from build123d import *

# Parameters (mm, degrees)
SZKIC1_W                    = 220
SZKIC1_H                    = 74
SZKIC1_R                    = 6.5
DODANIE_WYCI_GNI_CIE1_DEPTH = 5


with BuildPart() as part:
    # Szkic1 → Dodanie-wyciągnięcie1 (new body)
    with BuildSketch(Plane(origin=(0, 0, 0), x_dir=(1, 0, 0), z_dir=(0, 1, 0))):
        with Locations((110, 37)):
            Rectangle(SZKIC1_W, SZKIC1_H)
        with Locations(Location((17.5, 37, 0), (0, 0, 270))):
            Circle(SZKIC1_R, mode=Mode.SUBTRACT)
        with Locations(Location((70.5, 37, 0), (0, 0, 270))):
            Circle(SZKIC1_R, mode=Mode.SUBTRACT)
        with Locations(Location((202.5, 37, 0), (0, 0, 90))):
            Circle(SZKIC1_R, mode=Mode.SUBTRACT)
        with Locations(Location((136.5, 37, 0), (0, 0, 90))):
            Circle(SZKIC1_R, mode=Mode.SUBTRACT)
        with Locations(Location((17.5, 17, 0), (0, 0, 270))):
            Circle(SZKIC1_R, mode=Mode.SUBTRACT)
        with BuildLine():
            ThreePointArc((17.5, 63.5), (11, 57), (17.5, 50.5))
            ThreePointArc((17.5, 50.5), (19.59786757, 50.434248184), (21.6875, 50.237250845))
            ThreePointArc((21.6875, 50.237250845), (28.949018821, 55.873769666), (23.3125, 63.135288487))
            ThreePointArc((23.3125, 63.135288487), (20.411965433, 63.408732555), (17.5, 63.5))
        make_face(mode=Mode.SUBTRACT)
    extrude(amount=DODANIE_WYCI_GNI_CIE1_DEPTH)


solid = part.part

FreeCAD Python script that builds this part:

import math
import FreeCAD as App
import Part
import Sketcher
from FreeCAD import Vector
Q = App.Units.Quantity


def add_polygon(sketch, points):
    """Adds a closed chain of lines whose ends are joined by coincident constraints."""
    first, n = sketch.GeometryCount, len(points)
    for a, b in zip(points, points[1:] + points[:1]):
        sketch.addGeometry(Part.LineSegment(App.Vector(*a, 0), App.Vector(*b, 0)), False)
    for i in range(n):
        sketch.addConstraint(Sketcher.Constraint("Coincident", first + i, 2, first + (i + 1) % n, 1))

doc = App.newDocument("Part")
body = doc.addObject("PartDesign::Body", "Body")

# Sketch on XZ plane
sketch1 = body.newObject("Sketcher::SketchObject", "Sketch")
sketch1.AttachmentSupport = (doc.getObject("XZ_Plane"), [""])
sketch1.MapMode = "FlatFace"
add_polygon(sketch1, [(0, -74), (0, 0), (220, 0), (220, -74)])  # lines 0-3
sketch1.addGeometry(Part.Circle(Vector(17.5, -17, 0), Vector(0, 0, 1), 6.5), False)  # 4
sketch1.addGeometry(Part.Circle(Vector(17.5, -37, 0), Vector(0, 0, 1), 6.5), False)  # 5
sketch1.addGeometry(Part.Circle(Vector(70.5, -37, 0), Vector(0, 0, 1), 6.5), False)  # 6
sketch1.addGeometry(Part.ArcOfCircle(Part.Circle(Vector(17.5, -57, 0), Vector(0, 0, 1), 6.5), math.radians(90), math.radians(270)), False)  # 7
sketch1.addGeometry(Part.ArcOfCircle(Part.Circle(Vector(17.5, -17, 0), Vector(0, 0, 1), 46.5), math.radians(-90), math.radians(-82.82)), False)  # 8
sketch1.addGeometry(Part.ArcOfCircle(Part.Circle(Vector(22.5, -56.7, 0), Vector(0, 0, 1), 6.5), math.radians(-83), math.radians(97)), False)  # 9
sketch1.addGeometry(Part.ArcOfCircle(Part.Circle(Vector(17.5, -17, 0), Vector(0, 0, 1), 33.5), math.radians(-90), math.radians(-82.82)), False)  # 10
sketch1.addGeometry(Part.Circle(Vector(136.5, -37, 0), Vector(0, 0, 1), 6.5), False)  # 11
sketch1.addGeometry(Part.Circle(Vector(202.5, -37, 0), Vector(0, 0, 1), 6.5), False)  # 12
sketch1.addConstraint(Sketcher.Constraint("Tangent", 7, 2, 8, 1))
sketch1.addConstraint(Sketcher.Constraint("Tangent", 8, 2, 9, 1))
sketch1.addConstraint(Sketcher.Constraint("Tangent", 9, 2, 10, 2))
sketch1.addConstraint(Sketcher.Constraint("Tangent", 10, 1, 7, 1))
sketch1.addConstraint(Sketcher.Constraint("Vertical", 0))
sketch1.addConstraint(Sketcher.Constraint("Horizontal", 1))
sketch1.addConstraint(Sketcher.Constraint("Vertical", 2))
sketch1.addConstraint(Sketcher.Constraint("Horizontal", 3))
sketch1.addConstraint(Sketcher.Constraint("Coincident", 0, 2, -1, 1))
sketch1.addConstraint(Sketcher.Constraint("Coincident", 8, 3, 4, 3))
sketch1.addConstraint(Sketcher.Constraint("Coincident", 10, 3, 4, 3))
sketch1.addConstraint(Sketcher.Constraint("Equal", 4, 5))
sketch1.addConstraint(Sketcher.Constraint("Equal", 5, 6))
sketch1.addConstraint(Sketcher.Constraint("Equal", 6, 7))
sketch1.addConstraint(Sketcher.Constraint("Equal", 9, 11))
sketch1.addConstraint(Sketcher.Constraint("Equal", 11, 12))
sketch1.addConstraint(Sketcher.Constraint("Horizontal", 5, 3, 6, 3))
sketch1.addConstraint(Sketcher.Constraint("Horizontal", 6, 3, 11, 3))
sketch1.addConstraint(Sketcher.Constraint("Horizontal", 11, 3, 12, 3))
sketch1.addConstraint(Sketcher.Constraint("Vertical", 4, 3, 5, 3))
sketch1.addConstraint(Sketcher.Constraint("Vertical", 5, 3, 7, 3))
sketch1.addConstraint(Sketcher.Constraint("Diameter", 4, Q("13 mm")))
sketch1.addConstraint(Sketcher.Constraint("Radius", 8, Q("46.5 mm")))
sketch1.addConstraint(Sketcher.Constraint("DistanceX", 1, 1, 1, 2, Q("220 mm")))
sketch1.addConstraint(Sketcher.Constraint("DistanceY", 0, 1, 0, 2, Q("74 mm")))
sketch1.addConstraint(Sketcher.Constraint("DistanceY", 4, 3, -1, 1, Q("17 mm")))
sketch1.addConstraint(Sketcher.Constraint("DistanceY", 5, 3, -1, 1, Q("37 mm")))
sketch1.addConstraint(Sketcher.Constraint("DistanceX", 5, 3, 6, 3, Q("53 mm")))
sketch1.addConstraint(Sketcher.Constraint("DistanceX", 7, 3, 9, 3, Q("5 mm")))
sketch1.addConstraint(Sketcher.Constraint("DistanceX", 6, 3, 11, 3, Q("66 mm")))
sketch1.addConstraint(Sketcher.Constraint("DistanceX", 11, 3, 12, 3, Q("66 mm")))
sketch1.addConstraint(Sketcher.Constraint("DistanceX", -1, 1, 4, 3, Q("17.5 mm")))
pad1 = body.newObject("PartDesign::Pad", "Pad")
pad1.Profile = sketch1
pad1.Length = 5
pad1.Reversed = True

doc.recompute()
